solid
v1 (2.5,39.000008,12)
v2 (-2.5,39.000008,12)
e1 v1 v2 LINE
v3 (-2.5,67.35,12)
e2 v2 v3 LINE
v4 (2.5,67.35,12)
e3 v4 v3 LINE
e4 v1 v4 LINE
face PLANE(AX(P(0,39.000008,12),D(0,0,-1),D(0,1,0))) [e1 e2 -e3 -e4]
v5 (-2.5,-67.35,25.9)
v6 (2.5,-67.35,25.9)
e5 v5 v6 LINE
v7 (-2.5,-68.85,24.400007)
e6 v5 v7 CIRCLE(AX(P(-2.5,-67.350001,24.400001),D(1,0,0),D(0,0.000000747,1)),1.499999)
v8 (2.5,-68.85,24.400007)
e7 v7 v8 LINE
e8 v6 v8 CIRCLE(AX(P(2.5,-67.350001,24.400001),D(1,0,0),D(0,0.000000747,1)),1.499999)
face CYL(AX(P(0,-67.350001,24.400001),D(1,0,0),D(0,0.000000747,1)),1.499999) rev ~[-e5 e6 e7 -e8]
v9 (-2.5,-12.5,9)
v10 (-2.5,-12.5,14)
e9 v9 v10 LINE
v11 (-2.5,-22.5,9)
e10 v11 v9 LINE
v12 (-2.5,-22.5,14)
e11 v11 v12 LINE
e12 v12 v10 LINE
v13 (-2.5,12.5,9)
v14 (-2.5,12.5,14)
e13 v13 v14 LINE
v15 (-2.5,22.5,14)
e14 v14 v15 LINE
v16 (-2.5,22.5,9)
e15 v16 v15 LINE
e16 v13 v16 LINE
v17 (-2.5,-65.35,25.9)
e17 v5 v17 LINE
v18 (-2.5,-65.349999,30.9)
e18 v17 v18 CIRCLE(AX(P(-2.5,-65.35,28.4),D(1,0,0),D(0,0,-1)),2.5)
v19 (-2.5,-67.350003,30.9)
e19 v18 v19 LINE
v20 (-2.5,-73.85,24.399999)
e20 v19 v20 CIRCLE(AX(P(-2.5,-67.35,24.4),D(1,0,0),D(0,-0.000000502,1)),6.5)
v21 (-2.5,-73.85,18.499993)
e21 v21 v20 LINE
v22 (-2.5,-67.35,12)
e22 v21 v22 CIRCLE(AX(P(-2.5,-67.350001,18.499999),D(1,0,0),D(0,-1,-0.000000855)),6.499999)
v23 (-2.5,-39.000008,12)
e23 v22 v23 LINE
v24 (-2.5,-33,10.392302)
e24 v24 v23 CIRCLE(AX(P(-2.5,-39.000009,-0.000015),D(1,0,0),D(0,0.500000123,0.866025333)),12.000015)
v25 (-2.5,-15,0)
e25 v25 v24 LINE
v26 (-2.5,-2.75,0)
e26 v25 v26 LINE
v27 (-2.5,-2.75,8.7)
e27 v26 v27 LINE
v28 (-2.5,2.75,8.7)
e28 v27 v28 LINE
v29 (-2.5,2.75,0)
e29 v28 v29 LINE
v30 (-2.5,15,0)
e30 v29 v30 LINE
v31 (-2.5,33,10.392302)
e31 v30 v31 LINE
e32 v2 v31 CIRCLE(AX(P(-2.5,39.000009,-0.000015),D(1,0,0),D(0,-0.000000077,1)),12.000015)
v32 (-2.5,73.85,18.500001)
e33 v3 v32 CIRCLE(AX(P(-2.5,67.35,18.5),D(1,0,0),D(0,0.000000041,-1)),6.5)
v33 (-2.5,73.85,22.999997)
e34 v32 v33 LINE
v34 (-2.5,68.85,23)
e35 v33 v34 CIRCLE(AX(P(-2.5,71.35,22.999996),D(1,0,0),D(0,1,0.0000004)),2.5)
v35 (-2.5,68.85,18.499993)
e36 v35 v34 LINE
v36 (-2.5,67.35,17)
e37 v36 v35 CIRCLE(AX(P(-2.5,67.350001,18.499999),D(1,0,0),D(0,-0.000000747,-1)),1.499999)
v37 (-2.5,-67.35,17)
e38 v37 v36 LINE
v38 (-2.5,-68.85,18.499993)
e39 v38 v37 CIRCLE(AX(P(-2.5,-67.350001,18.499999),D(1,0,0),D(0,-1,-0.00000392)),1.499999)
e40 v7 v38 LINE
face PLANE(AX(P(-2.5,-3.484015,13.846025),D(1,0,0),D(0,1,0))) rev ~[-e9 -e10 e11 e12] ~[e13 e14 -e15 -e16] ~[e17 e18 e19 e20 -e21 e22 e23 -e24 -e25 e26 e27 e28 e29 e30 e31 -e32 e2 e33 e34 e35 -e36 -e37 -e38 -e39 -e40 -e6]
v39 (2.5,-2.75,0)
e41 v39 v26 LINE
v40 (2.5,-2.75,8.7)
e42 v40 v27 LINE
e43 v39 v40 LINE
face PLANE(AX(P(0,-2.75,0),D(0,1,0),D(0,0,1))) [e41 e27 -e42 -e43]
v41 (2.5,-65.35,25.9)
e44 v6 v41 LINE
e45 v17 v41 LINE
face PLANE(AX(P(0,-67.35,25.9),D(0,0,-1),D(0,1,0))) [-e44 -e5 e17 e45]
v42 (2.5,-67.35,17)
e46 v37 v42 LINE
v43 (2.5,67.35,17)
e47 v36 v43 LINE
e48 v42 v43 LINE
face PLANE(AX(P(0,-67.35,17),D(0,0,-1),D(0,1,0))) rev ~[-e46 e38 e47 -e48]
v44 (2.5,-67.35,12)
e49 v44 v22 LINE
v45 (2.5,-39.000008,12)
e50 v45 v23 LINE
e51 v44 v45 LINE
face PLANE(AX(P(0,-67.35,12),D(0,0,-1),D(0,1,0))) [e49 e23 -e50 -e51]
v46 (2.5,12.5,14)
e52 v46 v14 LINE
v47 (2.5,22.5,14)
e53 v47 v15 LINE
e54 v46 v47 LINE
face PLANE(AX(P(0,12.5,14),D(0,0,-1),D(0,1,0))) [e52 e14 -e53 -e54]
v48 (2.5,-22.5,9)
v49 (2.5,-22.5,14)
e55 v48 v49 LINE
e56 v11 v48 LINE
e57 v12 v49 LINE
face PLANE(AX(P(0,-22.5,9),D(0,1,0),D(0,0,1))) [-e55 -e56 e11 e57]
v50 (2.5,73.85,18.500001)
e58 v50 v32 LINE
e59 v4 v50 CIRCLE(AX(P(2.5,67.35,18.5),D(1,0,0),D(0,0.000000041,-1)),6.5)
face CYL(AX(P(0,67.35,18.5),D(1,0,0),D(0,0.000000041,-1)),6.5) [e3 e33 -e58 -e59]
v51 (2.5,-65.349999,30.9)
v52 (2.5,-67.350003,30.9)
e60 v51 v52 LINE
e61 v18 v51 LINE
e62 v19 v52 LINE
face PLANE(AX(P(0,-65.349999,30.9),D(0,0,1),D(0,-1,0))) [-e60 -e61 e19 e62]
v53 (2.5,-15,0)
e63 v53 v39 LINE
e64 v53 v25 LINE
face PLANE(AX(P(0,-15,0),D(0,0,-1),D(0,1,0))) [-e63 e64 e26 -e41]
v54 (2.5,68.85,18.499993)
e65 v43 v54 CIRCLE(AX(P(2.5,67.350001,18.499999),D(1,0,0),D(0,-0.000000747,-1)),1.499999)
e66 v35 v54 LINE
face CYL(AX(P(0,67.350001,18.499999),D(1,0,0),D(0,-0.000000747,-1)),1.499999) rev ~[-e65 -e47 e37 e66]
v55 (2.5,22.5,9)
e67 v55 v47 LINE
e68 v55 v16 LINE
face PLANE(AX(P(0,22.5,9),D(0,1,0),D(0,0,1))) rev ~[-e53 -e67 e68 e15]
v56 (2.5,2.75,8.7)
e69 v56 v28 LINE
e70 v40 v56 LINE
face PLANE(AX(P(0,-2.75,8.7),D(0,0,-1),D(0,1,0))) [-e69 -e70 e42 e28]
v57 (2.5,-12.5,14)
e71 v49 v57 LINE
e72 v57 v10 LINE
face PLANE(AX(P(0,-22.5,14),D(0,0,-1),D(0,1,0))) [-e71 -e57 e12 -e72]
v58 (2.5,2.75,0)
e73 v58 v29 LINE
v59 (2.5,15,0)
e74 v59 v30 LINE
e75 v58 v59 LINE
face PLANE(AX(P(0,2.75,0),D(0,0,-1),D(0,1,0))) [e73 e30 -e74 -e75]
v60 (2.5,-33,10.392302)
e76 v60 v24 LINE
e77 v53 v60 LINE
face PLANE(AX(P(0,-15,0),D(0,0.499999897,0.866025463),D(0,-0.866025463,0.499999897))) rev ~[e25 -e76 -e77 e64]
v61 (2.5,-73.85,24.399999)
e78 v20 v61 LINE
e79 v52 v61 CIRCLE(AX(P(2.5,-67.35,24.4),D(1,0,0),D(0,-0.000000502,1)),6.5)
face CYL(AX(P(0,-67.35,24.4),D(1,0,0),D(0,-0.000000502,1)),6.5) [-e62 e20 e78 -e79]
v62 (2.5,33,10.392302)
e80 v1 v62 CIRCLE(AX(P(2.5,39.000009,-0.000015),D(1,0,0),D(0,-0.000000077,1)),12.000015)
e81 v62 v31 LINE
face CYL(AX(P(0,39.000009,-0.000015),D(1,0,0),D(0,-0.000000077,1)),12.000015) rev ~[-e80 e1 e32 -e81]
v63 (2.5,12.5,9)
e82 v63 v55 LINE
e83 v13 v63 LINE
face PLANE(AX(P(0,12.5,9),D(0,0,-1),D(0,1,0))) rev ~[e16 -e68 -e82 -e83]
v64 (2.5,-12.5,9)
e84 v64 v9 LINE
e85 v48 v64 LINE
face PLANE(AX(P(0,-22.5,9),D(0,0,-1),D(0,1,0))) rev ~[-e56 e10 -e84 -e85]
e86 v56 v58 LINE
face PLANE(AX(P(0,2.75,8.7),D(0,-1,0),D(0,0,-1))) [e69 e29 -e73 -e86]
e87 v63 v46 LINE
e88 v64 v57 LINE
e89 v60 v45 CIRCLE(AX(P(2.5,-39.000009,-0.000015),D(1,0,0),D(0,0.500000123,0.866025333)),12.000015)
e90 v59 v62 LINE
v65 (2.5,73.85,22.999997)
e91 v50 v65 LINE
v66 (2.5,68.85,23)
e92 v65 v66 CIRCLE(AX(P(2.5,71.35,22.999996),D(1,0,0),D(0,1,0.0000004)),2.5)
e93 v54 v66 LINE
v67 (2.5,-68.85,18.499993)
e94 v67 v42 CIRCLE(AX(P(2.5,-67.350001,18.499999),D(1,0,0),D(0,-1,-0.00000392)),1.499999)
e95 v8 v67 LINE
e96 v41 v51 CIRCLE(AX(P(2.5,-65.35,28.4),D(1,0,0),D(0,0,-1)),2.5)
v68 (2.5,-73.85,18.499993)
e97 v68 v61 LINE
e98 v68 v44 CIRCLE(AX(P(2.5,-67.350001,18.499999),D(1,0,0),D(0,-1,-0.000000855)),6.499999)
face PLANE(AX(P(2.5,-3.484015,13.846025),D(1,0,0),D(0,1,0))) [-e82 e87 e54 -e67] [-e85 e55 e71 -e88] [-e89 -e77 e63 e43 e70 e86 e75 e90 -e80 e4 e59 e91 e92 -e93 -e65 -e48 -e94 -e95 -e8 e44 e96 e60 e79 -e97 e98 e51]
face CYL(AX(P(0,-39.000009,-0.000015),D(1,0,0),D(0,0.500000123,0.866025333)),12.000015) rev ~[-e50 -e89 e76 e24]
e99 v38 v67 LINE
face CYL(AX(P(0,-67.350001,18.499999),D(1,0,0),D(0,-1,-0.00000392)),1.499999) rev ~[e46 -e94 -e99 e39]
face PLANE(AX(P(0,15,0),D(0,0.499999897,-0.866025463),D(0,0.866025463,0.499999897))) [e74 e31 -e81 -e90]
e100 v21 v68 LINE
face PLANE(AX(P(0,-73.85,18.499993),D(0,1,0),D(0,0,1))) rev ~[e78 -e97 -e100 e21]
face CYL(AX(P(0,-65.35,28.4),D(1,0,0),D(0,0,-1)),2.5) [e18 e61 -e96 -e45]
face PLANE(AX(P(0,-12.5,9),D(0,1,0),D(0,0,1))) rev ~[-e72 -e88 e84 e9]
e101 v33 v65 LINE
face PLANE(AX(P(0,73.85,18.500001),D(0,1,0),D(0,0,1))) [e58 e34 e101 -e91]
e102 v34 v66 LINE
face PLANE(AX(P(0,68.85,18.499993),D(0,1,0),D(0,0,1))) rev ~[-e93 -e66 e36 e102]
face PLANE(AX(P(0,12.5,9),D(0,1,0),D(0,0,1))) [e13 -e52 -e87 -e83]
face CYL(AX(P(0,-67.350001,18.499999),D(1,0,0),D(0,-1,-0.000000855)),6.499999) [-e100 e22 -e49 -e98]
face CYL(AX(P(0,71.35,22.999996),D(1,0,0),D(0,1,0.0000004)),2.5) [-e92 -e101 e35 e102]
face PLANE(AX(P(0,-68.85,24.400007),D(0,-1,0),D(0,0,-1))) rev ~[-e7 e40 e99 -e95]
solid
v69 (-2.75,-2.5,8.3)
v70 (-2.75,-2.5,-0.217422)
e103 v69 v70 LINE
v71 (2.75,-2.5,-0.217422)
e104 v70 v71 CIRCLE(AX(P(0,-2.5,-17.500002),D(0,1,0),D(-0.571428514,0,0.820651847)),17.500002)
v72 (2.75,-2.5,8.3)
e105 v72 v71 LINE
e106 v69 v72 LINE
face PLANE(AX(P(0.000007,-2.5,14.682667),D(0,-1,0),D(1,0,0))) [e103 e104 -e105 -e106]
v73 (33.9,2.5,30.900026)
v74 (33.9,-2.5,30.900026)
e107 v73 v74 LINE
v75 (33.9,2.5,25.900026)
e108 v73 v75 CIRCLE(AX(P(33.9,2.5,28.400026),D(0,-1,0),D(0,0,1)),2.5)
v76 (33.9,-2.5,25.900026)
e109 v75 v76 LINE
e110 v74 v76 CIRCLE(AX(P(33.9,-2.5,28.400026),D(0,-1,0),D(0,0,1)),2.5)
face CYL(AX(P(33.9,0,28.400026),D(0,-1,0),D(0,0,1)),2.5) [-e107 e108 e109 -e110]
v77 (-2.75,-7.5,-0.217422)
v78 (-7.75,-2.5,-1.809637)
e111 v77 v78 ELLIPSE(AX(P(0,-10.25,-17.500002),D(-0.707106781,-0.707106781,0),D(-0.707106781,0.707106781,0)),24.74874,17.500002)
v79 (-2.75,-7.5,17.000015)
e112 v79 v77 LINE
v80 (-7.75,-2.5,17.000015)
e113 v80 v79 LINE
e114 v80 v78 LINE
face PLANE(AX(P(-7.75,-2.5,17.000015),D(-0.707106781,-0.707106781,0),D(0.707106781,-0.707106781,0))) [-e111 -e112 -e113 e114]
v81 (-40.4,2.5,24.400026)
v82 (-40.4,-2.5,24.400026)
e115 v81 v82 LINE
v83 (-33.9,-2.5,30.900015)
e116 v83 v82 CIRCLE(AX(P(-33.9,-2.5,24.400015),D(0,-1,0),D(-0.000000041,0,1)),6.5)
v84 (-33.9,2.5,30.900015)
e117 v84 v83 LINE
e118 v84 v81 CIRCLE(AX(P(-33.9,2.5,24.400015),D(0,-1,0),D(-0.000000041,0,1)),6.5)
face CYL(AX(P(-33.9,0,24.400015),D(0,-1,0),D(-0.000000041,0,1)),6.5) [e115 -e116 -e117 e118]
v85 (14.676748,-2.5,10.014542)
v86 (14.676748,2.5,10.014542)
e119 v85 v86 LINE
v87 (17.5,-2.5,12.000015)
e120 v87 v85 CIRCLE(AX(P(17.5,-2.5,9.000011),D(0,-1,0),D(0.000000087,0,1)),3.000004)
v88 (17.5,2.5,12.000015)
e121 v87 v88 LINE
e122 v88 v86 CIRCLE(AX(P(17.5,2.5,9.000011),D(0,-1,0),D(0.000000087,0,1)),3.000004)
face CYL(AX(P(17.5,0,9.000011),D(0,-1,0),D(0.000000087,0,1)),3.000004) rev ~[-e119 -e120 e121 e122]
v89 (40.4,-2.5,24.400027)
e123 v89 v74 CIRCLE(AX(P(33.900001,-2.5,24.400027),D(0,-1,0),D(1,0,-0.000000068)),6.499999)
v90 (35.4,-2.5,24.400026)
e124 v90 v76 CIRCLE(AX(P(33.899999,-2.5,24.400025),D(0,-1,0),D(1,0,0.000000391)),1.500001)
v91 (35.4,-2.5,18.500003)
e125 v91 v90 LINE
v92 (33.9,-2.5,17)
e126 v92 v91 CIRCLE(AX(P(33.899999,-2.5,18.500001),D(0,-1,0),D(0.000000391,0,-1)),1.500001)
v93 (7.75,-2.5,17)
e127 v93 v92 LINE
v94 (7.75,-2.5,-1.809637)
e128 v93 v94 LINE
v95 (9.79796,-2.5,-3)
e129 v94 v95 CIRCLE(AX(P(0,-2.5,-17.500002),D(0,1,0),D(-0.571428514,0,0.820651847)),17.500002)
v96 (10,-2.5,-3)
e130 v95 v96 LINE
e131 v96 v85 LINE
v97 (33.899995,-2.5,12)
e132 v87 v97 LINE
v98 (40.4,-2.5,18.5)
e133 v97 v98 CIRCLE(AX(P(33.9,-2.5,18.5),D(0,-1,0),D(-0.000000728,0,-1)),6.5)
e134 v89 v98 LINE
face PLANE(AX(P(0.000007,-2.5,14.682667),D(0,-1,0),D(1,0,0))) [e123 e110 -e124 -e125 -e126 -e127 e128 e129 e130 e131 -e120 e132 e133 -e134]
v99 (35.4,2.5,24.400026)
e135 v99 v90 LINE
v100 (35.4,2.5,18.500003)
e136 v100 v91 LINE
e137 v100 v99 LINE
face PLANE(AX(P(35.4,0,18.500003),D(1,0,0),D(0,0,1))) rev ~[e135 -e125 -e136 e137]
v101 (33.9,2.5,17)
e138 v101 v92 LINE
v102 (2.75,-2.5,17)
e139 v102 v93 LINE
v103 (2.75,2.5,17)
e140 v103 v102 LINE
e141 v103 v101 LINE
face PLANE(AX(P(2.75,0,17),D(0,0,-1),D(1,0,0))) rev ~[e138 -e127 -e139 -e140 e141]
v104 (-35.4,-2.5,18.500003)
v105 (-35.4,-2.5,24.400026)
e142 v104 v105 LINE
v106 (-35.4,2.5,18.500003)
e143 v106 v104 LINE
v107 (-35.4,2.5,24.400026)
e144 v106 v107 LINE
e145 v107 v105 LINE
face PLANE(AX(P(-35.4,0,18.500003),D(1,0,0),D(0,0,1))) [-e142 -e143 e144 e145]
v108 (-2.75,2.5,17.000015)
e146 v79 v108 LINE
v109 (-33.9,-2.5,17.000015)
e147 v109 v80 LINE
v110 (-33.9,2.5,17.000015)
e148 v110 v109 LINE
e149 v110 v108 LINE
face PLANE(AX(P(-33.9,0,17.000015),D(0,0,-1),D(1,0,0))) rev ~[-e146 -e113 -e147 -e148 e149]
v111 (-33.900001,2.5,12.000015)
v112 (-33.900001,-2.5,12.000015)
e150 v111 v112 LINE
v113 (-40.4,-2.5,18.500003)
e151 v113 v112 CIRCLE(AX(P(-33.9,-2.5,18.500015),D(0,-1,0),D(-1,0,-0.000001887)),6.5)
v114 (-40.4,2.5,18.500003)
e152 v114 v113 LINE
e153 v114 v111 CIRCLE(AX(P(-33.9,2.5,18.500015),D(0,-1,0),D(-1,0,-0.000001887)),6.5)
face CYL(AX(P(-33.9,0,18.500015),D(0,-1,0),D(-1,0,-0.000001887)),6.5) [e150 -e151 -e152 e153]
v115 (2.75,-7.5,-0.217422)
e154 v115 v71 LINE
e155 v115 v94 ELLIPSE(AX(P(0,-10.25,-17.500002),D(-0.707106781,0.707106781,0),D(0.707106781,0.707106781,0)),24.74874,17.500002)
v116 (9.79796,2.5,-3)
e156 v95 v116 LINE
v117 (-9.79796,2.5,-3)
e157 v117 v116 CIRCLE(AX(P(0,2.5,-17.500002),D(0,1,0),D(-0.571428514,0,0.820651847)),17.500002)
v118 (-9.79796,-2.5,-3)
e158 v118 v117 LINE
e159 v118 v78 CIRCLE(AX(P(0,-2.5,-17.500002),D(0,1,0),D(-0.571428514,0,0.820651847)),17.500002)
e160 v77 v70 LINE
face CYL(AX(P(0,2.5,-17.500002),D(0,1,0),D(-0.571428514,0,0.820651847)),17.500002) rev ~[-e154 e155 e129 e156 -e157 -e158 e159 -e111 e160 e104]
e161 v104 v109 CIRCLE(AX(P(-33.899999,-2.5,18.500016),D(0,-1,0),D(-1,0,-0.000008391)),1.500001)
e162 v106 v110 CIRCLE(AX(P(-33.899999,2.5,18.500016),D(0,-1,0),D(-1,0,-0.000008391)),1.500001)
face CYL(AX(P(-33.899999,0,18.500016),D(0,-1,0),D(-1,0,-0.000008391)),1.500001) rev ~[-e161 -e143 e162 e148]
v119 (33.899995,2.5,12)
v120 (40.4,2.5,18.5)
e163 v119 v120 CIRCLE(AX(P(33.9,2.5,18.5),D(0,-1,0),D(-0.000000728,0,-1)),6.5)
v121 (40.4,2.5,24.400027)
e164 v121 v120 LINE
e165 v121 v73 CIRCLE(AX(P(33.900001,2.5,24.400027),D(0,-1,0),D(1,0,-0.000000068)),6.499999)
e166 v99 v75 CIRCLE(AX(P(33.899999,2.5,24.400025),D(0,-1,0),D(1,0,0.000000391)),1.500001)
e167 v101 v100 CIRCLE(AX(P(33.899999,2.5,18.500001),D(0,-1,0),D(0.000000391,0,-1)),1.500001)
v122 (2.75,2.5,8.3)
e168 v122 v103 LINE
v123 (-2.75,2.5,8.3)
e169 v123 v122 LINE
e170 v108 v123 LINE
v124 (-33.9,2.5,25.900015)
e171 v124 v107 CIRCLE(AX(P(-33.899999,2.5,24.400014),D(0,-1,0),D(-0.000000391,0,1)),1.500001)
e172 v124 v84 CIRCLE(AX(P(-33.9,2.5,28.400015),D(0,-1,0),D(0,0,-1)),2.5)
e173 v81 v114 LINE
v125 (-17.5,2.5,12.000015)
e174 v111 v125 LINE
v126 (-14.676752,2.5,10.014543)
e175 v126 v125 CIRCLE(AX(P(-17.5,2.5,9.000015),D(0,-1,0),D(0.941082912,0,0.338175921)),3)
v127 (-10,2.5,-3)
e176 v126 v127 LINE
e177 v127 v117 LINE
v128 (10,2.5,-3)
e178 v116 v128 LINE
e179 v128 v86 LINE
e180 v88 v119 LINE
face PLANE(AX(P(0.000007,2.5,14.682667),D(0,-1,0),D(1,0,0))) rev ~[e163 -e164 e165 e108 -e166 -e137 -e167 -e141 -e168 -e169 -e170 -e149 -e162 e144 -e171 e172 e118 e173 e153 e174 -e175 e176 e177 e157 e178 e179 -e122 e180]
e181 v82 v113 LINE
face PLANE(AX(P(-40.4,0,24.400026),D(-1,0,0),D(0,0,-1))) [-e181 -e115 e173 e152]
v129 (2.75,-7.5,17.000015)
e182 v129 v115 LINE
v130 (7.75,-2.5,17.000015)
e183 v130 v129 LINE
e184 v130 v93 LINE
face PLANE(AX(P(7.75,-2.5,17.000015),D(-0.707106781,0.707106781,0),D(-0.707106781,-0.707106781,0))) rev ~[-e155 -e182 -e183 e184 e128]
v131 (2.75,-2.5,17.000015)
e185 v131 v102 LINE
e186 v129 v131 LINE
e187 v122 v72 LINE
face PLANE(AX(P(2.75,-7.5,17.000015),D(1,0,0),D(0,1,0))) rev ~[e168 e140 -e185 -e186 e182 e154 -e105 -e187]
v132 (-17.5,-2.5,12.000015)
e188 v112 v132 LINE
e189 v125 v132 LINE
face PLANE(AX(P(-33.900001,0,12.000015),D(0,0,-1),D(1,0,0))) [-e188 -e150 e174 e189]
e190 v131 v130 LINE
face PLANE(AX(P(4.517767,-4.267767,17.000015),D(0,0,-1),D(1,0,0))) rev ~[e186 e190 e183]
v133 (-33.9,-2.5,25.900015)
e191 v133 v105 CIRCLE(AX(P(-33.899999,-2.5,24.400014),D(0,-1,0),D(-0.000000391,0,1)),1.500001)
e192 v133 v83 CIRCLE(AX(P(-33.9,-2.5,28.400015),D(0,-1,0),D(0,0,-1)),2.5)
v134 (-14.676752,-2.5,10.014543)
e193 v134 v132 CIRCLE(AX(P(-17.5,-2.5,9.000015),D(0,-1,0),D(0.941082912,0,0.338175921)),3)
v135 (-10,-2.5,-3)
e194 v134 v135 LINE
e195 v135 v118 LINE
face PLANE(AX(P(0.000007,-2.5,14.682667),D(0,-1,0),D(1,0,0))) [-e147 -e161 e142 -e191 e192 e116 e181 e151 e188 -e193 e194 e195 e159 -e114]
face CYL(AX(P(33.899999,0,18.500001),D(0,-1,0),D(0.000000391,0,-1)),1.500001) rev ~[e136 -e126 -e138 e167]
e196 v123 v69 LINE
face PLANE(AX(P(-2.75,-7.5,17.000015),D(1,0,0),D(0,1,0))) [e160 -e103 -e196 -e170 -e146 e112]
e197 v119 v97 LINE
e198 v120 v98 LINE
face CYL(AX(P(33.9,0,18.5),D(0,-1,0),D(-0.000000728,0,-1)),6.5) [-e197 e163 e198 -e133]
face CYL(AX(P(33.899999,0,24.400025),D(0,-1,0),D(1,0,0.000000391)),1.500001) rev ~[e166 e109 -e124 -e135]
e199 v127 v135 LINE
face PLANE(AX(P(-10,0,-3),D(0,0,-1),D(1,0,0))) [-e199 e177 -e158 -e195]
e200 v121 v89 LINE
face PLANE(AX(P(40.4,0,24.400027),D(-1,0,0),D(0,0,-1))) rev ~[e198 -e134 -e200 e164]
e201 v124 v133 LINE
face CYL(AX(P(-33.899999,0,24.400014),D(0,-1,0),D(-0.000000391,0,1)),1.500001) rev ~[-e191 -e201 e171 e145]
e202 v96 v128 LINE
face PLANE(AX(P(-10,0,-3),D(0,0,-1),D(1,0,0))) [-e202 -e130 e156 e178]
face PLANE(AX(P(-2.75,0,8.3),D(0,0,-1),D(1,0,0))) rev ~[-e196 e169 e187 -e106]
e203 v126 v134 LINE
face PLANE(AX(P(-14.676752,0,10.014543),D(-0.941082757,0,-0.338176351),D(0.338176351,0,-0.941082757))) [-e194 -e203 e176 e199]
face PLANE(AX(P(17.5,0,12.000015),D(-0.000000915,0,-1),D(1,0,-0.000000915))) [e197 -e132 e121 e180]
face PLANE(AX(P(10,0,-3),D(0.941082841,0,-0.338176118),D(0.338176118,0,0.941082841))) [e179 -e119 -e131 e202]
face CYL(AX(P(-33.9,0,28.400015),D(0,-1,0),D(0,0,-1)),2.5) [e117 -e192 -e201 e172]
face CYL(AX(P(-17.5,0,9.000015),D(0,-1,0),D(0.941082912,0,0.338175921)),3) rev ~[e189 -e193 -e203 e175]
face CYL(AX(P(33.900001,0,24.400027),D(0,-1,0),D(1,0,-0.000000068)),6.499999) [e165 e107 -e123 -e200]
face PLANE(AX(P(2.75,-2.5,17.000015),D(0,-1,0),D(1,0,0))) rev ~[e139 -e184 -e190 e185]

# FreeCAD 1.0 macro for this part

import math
import FreeCAD as App
import Part
import Sketcher
from FreeCAD import Vector
Q = App.Units.Quantity

doc = App.newDocument("Part")
body = doc.addObject("PartDesign::Body", "Body")

# Sketch on YZ plane
sketch1 = body.newObject("Sketcher::SketchObject", "Sketch")
sketch1.AttachmentSupport = (doc.getObject("YZ_Plane"), [""])
sketch1.MapMode = "FlatFace"
sketch1.addGeometry(Part.LineSegment(Vector(73.8, 18.5, 0), Vector(73.8, 23, 0)), False)
sketch1.addGeometry(Part.ArcOfCircle(Part.Circle(Vector(71.3, 23, 0), Vector(0, 0, 1), 2.5), math.radians(0), math.radians(180)), False)
sketch1.addGeometry(Part.LineSegment(Vector(68.8, 23, 0), Vector(68.8, 18.5, 0)), False)
sketch1.addGeometry(Part.ArcOfCircle(Part.Circle(Vector(67.4, 18.5, 0), Vector(0, 0, 1), 1.5), math.radians(-90), math.radians(0)), False)
sketch1.addGeometry(Part.LineSegment(Vector(67.3, 17, 0), Vector(-67.3, 17, 0)), False)
sketch1.addGeometry(Part.ArcOfCircle(Part.Circle(Vector(-67.4, 18.5, 0), Vector(0, 0, 1), 1.5), math.radians(-180), math.radians(-90)), False)
sketch1.addGeometry(Part.LineSegment(Vector(-68.8, 18.5, 0), Vector(-68.8, 24.4, 0)), False)
sketch1.addGeometry(Part.ArcOfCircle(Part.Circle(Vector(-67.4, 24.4, 0), Vector(0, 0, 1), 1.5), math.radians(90), math.radians(180)), False)
sketch1.addGeometry(Part.LineSegment(Vector(-67.3, 25.9, 0), Vector(-65.3, 25.9, 0)), False)
sketch1.addGeometry(Part.ArcOfCircle(Part.Circle(Vector(-65.3, 28.4, 0), Vector(0, 0, 1), 2.5), math.radians(-90), math.radians(90)), False)
sketch1.addGeometry(Part.LineSegment(Vector(-65.3, 30.9, 0), Vector(-67.4, 30.9, 0)), False)
sketch1.addGeometry(Part.ArcOfCircle(Part.Circle(Vector(-67.3, 24.4, 0), Vector(0, 0, 1), 6.5), math.radians(90), math.radians(180)), False)
sketch1.addGeometry(Part.LineSegment(Vector(-73.8, 24.4, 0), Vector(-73.8, 18.5, 0)), False)
sketch1.addGeometry(Part.ArcOfCircle(Part.Circle(Vector(-67.4, 18.5, 0), Vector(0, 0, 1), 6.5), math.radians(-180), math.radians(-90)), False)
sketch1.addGeometry(Part.LineSegment(Vector(-67.3, 12, 0), Vector(-39, 12, 0)), False)
sketch1.addGeometry(Part.ArcOfCircle(Part.Circle(Vector(-39, 0, 0), Vector(0, 0, 1), 12), math.radians(60), math.radians(90)), False)
sketch1.addGeometry(Part.LineSegment(Vector(-33, 10.4, 0), Vector(-15, 0, 0)), False)
sketch1.addGeometry(Part.LineSegment(Vector(-15, 0, 0), Vector(-2.8, 0, 0)), False)
sketch1.addGeometry(Part.LineSegment(Vector(-2.8, 0, 0), Vector(-2.8, 8.7, 0)), False)
sketch1.addGeometry(Part.LineSegment(Vector(-2.8, 8.7, 0), Vector(2.8, 8.7, 0)), False)
sketch1.addGeometry(Part.LineSegment(Vector(2.8, 8.7, 0), Vector(2.8, 0, 0)), False)
sketch1.addGeometry(Part.LineSegment(Vector(2.8, 0, 0), Vector(15, 0, 0)), False)
sketch1.addGeometry(Part.LineSegment(Vector(15, 0, 0), Vector(33, 10.4, 0)), False)
sketch1.addGeometry(Part.ArcOfCircle(Part.Circle(Vector(39, 0, 0), Vector(0, 0, 1), 12), math.radians(90), math.radians(120)), False)
sketch1.addGeometry(Part.LineSegment(Vector(39, 12, 0), Vector(67.3, 12, 0)), False)
sketch1.addGeometry(Part.ArcOfCircle(Part.Circle(Vector(67.3, 18.5, 0), Vector(0, 0, 1), 6.5), math.radians(-90), math.radians(0)), False)
sketch1.addGeometry(Part.LineSegment(Vector(-12.5, 9, 0), Vector(-22.5, 9, 0)), False)
sketch1.addGeometry(Part.LineSegment(Vector(-22.5, 9, 0), Vector(-22.5, 14, 0)), False)
sketch1.addGeometry(Part.LineSegment(Vector(-22.5, 14, 0), Vector(-12.5, 14, 0)), False)
sketch1.addGeometry(Part.LineSegment(Vector(-12.5, 14, 0), Vector(-12.5, 9, 0)), False)
sketch1.addGeometry(Part.LineSegment(Vector(22.5, 9, 0), Vector(12.5, 9, 0)), False)
sketch1.addGeometry(Part.LineSegment(Vector(12.5, 9, 0), Vector(12.5, 14, 0)), False)
sketch1.addGeometry(Part.LineSegment(Vector(12.5, 14, 0), Vector(22.5, 14, 0)), False)
sketch1.addGeometry(Part.LineSegment(Vector(22.5, 14, 0), Vector(22.5, 9, 0)), False)
sketch1.addConstraint(Sketcher.Constraint("Tangent", 0, 2, 1, 1))
sketch1.addConstraint(Sketcher.Constraint("Tangent", 1, 2, 2, 1))
sketch1.addConstraint(Sketcher.Constraint("Coincident", 2, 2, 3, 2))
sketch1.addConstraint(Sketcher.Constraint("Tangent", 3, 1, 4, 1))
sketch1.addConstraint(Sketcher.Constraint("Tangent", 4, 2, 5, 2))
sketch1.addConstraint(Sketcher.Constraint("Coincident", 5, 1, 6, 1))
sketch1.addConstraint(Sketcher.Constraint("Coincident", 6, 2, 7, 2))
sketch1.addConstraint(Sketcher.Constraint("Tangent", 7, 1, 8, 1))
sketch1.addConstraint(Sketcher.Constraint("Tangent", 8, 2, 9, 1))
sketch1.addConstraint(Sketcher.Constraint("Tangent", 9, 2, 10, 1))
sketch1.addConstraint(Sketcher.Constraint("Tangent", 10, 2, 11, 1))
sketch1.addConstraint(Sketcher.Constraint("Tangent", 11, 2, 12, 1))
sketch1.addConstraint(Sketcher.Constraint("Tangent", 12, 2, 13, 1))
sketch1.addConstraint(Sketcher.Constraint("Tangent", 13, 2, 14, 1))
sketch1.addConstraint(Sketcher.Constraint("Tangent", 14, 2, 15, 2))
sketch1.addConstraint(Sketcher.Constraint("Tangent", 15, 1, 16, 1))
sketch1.addConstraint(Sketcher.Constraint("Coincident", 16, 2, 17, 1))
sketch1.addConstraint(Sketcher.Constraint("Coincident", 17, 2, 18, 1))
sketch1.addConstraint(Sketcher.Constraint("Coincident", 18, 2, 19, 1))
sketch1.addConstraint(Sketcher.Constraint("Coincident", 19, 2, 20, 1))
sketch1.addConstraint(Sketcher.Constraint("Coincident", 20, 2, 21, 1))
sketch1.addConstraint(Sketcher.Constraint("Coincident", 21, 2, 22, 1))
sketch1.addConstraint(Sketcher.Constraint("Tangent", 22, 2, 23, 2))
sketch1.addConstraint(Sketcher.Constraint("Tangent", 23, 1, 24, 1))
sketch1.addConstraint(Sketcher.Constraint("Tangent", 24, 2, 25, 1))
sketch1.addConstraint(Sketcher.Constraint("Tangent", 25, 2, 0, 1))
sketch1.addConstraint(Sketcher.Constraint("Coincident", 26, 2, 27, 1))
sketch1.addConstraint(Sketcher.Constraint("Coincident", 27, 2, 28, 1))
sketch1.addConstraint(Sketcher.Constraint("Coincident", 28, 2, 29, 1))
sketch1.addConstraint(Sketcher.Constraint("Coincident", 29, 2, 26, 1))
sketch1.addConstraint(Sketcher.Constraint("Coincident", 30, 2, 31, 1))
sketch1.addConstraint(Sketcher.Constraint("Coincident", 31, 2, 32, 1))
sketch1.addConstraint(Sketcher.Constraint("Coincident", 32, 2, 33, 1))
sketch1.addConstraint(Sketcher.Constraint("Coincident", 33, 2, 30, 1))
sketch1.addConstraint(Sketcher.Constraint("Vertical", 0))
sketch1.addConstraint(Sketcher.Constraint("Vertical", 2))
sketch1.addConstraint(Sketcher.Constraint("Horizontal", 4))
sketch1.addConstraint(Sketcher.Constraint("Vertical", 6))
sketch1.addConstraint(Sketcher.Constraint("Horizontal", 8))
sketch1.addConstraint(Sketcher.Constraint("Horizontal", 10))
sketch1.addConstraint(Sketcher.Constraint("Vertical", 12))
sketch1.addConstraint(Sketcher.Constraint("Horizontal", 14))
sketch1.addConstraint(Sketcher.Constraint("Horizontal", 17))
sketch1.addConstraint(Sketcher.Constraint("Vertical", 18))
sketch1.addConstraint(Sketcher.Constraint("Horizontal", 19))
sketch1.addConstraint(Sketcher.Constraint("Vertical", 20))
sketch1.addConstraint(Sketcher.Constraint("Horizontal", 21))
sketch1.addConstraint(Sketcher.Constraint("Horizontal", 24))
sketch1.addConstraint(Sketcher.Constraint("Horizontal", 26))
sketch1.addConstraint(Sketcher.Constraint("Vertical", 27))
sketch1.addConstraint(Sketcher.Constraint("Horizontal", 28))
sketch1.addConstraint(Sketcher.Constraint("Vertical", 29))
sketch1.addConstraint(Sketcher.Constraint("Horizontal", 30))
sketch1.addConstraint(Sketcher.Constraint("Vertical", 31))
sketch1.addConstraint(Sketcher.Constraint("Horizontal", 32))
sketch1.addConstraint(Sketcher.Constraint("Vertical", 33))
sketch1.addConstraint(Sketcher.Constraint("Coincident", 11, 3, 7, 3))
sketch1.addConstraint(Sketcher.Constraint("Coincident", 13, 3, 5, 3))
sketch1.addConstraint(Sketcher.Constraint("Coincident", 25, 3, 3, 3))
sketch1.addConstraint(Sketcher.Constraint("Equal", 3, 5))
sketch1.addConstraint(Sketcher.Constraint("Equal", 5, 7))
sketch1.addConstraint(Sketcher.Constraint("Equal", 1, 9))
sketch1.addConstraint(Sketcher.Constraint("Equal", 15, 23))
sketch1.addConstraint(Sketcher.Constraint("Symmetric", 17, 2, 20, 2, -1, 1))
sketch1.addConstraint(Sketcher.Constraint("Symmetric", 2, 2, 5, 1, -2))
sketch1.addConstraint(Sketcher.Constraint("Symmetric", 16, 2, 21, 2, -2))
sketch1.addConstraint(Sketcher.Constraint("Symmetric", 29, 2, 30, 2, -2))
sketch1.addConstraint(Sketcher.Constraint("Symmetric", 27, 2, 32, 2, -2))
sketch1.addConstraint(Sketcher.Constraint("Horizontal", 5, 1, 12, 2))
sketch1.addConstraint(Sketcher.Constraint("Horizontal", 15, 1, 22, 2))
sketch1.addConstraint(Sketcher.Constraint("Radius", 1, Q("2.5 mm")))
sketch1.addConstraint(Sketcher.Constraint("Radius", 3, Q("1.499999 mm")))
sketch1.addConstraint(Sketcher.Constraint("DistanceX", 8, 1, 8, 2, Q("2 mm")))
sketch1.addConstraint(Sketcher.Constraint("DistanceX", 26, 2, 26, 1, Q("10 mm")))
sketch1.addConstraint(Sketcher.Constraint("DistanceY", 27, 1, 27, 2, Q("5 mm")))
sketch1.addConstraint(Sketcher.Constraint("Angle", 16, Q("-29.999993 deg")))
sketch1.addConstraint(Sketcher.Constraint("DistanceX", 4, 2, 4, 1, Q("134.7 mm")))
sketch1.addConstraint(Sketcher.Constraint("DistanceX", 19, 1, 19, 2, Q("5.5 mm")))
sketch1.addConstraint(Sketcher.Constraint("DistanceY", 18, 1, 18, 2, Q("8.7 mm")))
sketch1.addConstraint(Sketcher.Constraint("DistanceY", -1, 1, 1, 2, Q("23 mm")))
sketch1.addConstraint(Sketcher.Constraint("DistanceY", -1, 1, 3, 1, Q("17 mm")))
sketch1.addConstraint(Sketcher.Constraint("DistanceX", 15, 1, -1, 1, Q("33 mm")))
sketch1.addConstraint(Sketcher.Constraint("DistanceX", 16, 2, -1, 1, Q("15 mm")))
sketch1.addConstraint(Sketcher.Constraint("DistanceY", -1, 1, 26, 2, Q("9 mm")))
sketch1.addConstraint(Sketcher.Constraint("DistanceY", -1, 1, 7, 3, Q("24.400001 mm")))
sketch1.addConstraint(Sketcher.Constraint("DistanceX", 26, 2, -1, 1, Q("22.5 mm")))
sketch1.addConstraint(Sketcher.Constraint("DistanceY", 6, 1, 6, 2, Q("5.900014 mm")))
pad1 = body.newObject("PartDesign::Pad", "Pad")
pad1.Profile = sketch1
pad1.Length = 5
pad1.Midplane = True
body2 = doc.addObject("PartDesign::Body", "Body001")
body2.AllowCompound = True

# Sketch on XZ plane
sketch2 = body2.newObject("Sketcher::SketchObject", "Sketch001")
sketch2.AttachmentSupport = (doc.getObject("XZ_Plane001"), [""])
sketch2.MapMode = "FlatFace"
sketch2.addGeometry(Part.LineSegment(Vector(17.5, 12.000015, 0), Vector(33.899995, 12, 0)), False)
sketch2.addGeometry(Part.ArcOfCircle(Part.Circle(Vector(33.9, 18.5, 0), Vector(0, 0, 1), 6.5), math.radians(-90.000042), math.radians(-0.000002)), False)
sketch2.addGeometry(Part.LineSegment(Vector(40.4, 18.5, 0), Vector(40.4, 24.400027, 0)), False)
sketch2.addGeometry(Part.ArcOfCircle(Part.Circle(Vector(33.900001, 24.400027, 0), Vector(0, 0, 1), 6.499999), math.radians(-0.000004), math.radians(90.000013)), False)
sketch2.addGeometry(Part.ArcOfCircle(Part.Circle(Vector(33.9, 28.400026, 0), Vector(0, 0, 1), 2.5), math.radians(90), math.radians(270)), False)
sketch2.addGeometry(Part.ArcOfCircle(Part.Circle(Vector(33.899999, 24.400025, 0), Vector(0, 0, 1), 1.500001), math.radians(0.000022), math.radians(89.999978)), False)
sketch2.addGeometry(Part.LineSegment(Vector(35.4, 24.400026, 0), Vector(35.4, 18.500003, 0)), False)
sketch2.addGeometry(Part.ArcOfCircle(Part.Circle(Vector(33.899999, 18.500001, 0), Vector(0, 0, 1), 1.500001), math.radians(-89.999978), math.radians(0.000092)), False)
sketch2.addGeometry(Part.LineSegment(Vector(33.9, 17, 0), Vector(2.75, 17, 0)), False)
sketch2.addGeometry(Part.LineSegment(Vector(2.75, 17, 0), Vector(2.75, 8.3, 0)), False)
sketch2.addGeometry(Part.LineSegment(Vector(2.75, 8.3, 0), Vector(-2.75, 8.3, 0)), False)
sketch2.addGeometry(Part.LineSegment(Vector(-2.75, 8.3, 0), Vector(-2.75, 17.000015, 0)), False)
sketch2.addGeometry(Part.LineSegment(Vector(-2.75, 17.000015, 0), Vector(-33.9, 17.000015, 0)), False)
sketch2.addGeometry(Part.ArcOfCircle(Part.Circle(Vector(-33.899999, 18.500016, 0), Vector(0, 0, 1), 1.500001), math.radians(-179.999519), math.radians(-90.000022)), False)
sketch2.addGeometry(Part.LineSegment(Vector(-35.4, 18.500003, 0), Vector(-35.4, 24.400026, 0)), False)
sketch2.addGeometry(Part.ArcOfCircle(Part.Circle(Vector(-33.899999, 24.400014, 0), Vector(0, 0, 1), 1.500001), math.radians(90.000022), math.radians(179.999557)), False)
sketch2.addGeometry(Part.ArcOfCircle(Part.Circle(Vector(-33.9, 28.400015, 0), Vector(0, 0, 1), 2.5), math.radians(-90), math.radians(90)), False)
sketch2.addGeometry(Part.ArcOfCircle(Part.Circle(Vector(-33.9, 24.400015, 0), Vector(0, 0, 1), 6.5), math.radians(90.000002), math.radians(179.999901)), False)
sketch2.addGeometry(Part.LineSegment(Vector(-40.4, 24.400026, 0), Vector(-40.4, 18.500003, 0)), False)
sketch2.addGeometry(Part.ArcOfCircle(Part.Circle(Vector(-33.9, 18.500015, 0), Vector(0, 0, 1), 6.5), math.radians(-179.999892), math.radians(-90.000011)), False)
sketch2.addGeometry(Part.LineSegment(Vector(-33.900001, 12.000015, 0), Vector(-17.5, 12.000015, 0)), False)
sketch2.addGeometry(Part.ArcOfCircle(Part.Circle(Vector(-17.5, 9.000015, 0), Vector(0, 0, 1), 3), math.radians(19.76578), math.radians(89.999992)), False)
sketch2.addGeometry(Part.LineSegment(Vector(-14.676752, 10.014543, 0), Vector(-10, -3, 0)), False)
sketch2.addGeometry(Part.LineSegment(Vector(-10, -3, 0), Vector(10, -3, 0)), False)
sketch2.addGeometry(Part.LineSegment(Vector(10, -3, 0), Vector(14.676748, 10.014542, 0)), False)
sketch2.addGeometry(Part.ArcOfCircle(Part.Circle(Vector(17.5, 9.000011, 0), Vector(0, 0, 1), 3.000004), math.radians(89.999995), math.radians(160.234183)), False)
sketch2.addConstraint(Sketcher.Constraint("Coincident", 0, 2, 1, 1))
sketch2.addConstraint(Sketcher.Constraint("Coincident", 1, 2, 2, 1))
sketch2.addConstraint(Sketcher.Constraint("Coincident", 2, 2, 3, 1))
sketch2.addConstraint(Sketcher.Constraint("Coincident", 3, 2, 4, 1))
sketch2.addConstraint(Sketcher.Constraint("Coincident", 4, 2, 5, 2))
sketch2.addConstraint(Sketcher.Constraint("Coincident", 5, 1, 6, 1))
sketch2.addConstraint(Sketcher.Constraint("Coincident", 6, 2, 7, 2))
sketch2.addConstraint(Sketcher.Constraint("Coincident", 7, 1, 8, 1))
sketch2.addConstraint(Sketcher.Constraint("Coincident", 8, 2, 9, 1))
sketch2.addConstraint(Sketcher.Constraint("Coincident", 9, 2, 10, 1))
sketch2.addConstraint(Sketcher.Constraint("Coincident", 10, 2, 11, 1))
sketch2.addConstraint(Sketcher.Constraint("Coincident", 11, 2, 12, 1))
sketch2.addConstraint(Sketcher.Constraint("Coincident", 12, 2, 13, 2))
sketch2.addConstraint(Sketcher.Constraint("Coincident", 13, 1, 14, 1))
sketch2.addConstraint(Sketcher.Constraint("Coincident", 14, 2, 15, 2))
sketch2.addConstraint(Sketcher.Constraint("Coincident", 15, 1, 16, 1))
sketch2.addConstraint(Sketcher.Constraint("Coincident", 16, 2, 17, 1))
sketch2.addConstraint(Sketcher.Constraint("Coincident", 17, 2, 18, 1))
sketch2.addConstraint(Sketcher.Constraint("Coincident", 18, 2, 19, 1))
sketch2.addConstraint(Sketcher.Constraint("Coincident", 19, 2, 20, 1))
sketch2.addConstraint(Sketcher.Constraint("Coincident", 20, 2, 21, 2))
sketch2.addConstraint(Sketcher.Constraint("Coincident", 21, 1, 22, 1))
sketch2.addConstraint(Sketcher.Constraint("Coincident", 22, 2, 23, 1))
sketch2.addConstraint(Sketcher.Constraint("Coincident", 23, 2, 24, 1))
sketch2.addConstraint(Sketcher.Constraint("Coincident", 24, 2, 25, 2))
sketch2.addConstraint(Sketcher.Constraint("Coincident", 25, 1, 0, 1))
sketch2.addConstraint(Sketcher.Constraint("Vertical", 2))
sketch2.addConstraint(Sketcher.Constraint("Vertical", 6))
sketch2.addConstraint(Sketcher.Constraint("Horizontal", 8))
sketch2.addConstraint(Sketcher.Constraint("Vertical", 9))
sketch2.addConstraint(Sketcher.Constraint("Horizontal", 10))
sketch2.addConstraint(Sketcher.Constraint("Vertical", 11))
sketch2.addConstraint(Sketcher.Constraint("Horizontal", 12))
sketch2.addConstraint(Sketcher.Constraint("Vertical", 14))
sketch2.addConstraint(Sketcher.Constraint("Vertical", 18))
sketch2.addConstraint(Sketcher.Constraint("Horizontal", 20))
sketch2.addConstraint(Sketcher.Constraint("Horizontal", 23))
sketch2.addConstraint(Sketcher.Constraint("Coincident", 5, 3, 3, 3))
sketch2.addConstraint(Sketcher.Constraint("Coincident", 7, 3, 1, 3))
sketch2.addConstraint(Sketcher.Constraint("Coincident", 17, 3, 15, 3))
sketch2.addConstraint(Sketcher.Constraint("Coincident", 19, 3, 13, 3))
sketch2.addConstraint(Sketcher.Constraint("Radius", 21, Q("3 mm")))
sketch2.addConstraint(Sketcher.Constraint("Radius", 1, Q("6.5 mm")))
sketch2.addConstraint(Sketcher.Constraint("Radius", 3, Q("6.499999 mm")))
sketch2.addConstraint(Sketcher.Constraint("Radius", 4, Q("2.5 mm")))
sketch2.addConstraint(Sketcher.Constraint("Radius", 13, Q("1.500001 mm")))
sketch2.addConstraint(Sketcher.Constraint("Radius", 15, Q("1.500001 mm")))
sketch2.addConstraint(Sketcher.Constraint("Radius", 16, Q("2.5 mm")))
sketch2.addConstraint(Sketcher.Constraint("DistanceX", 23, 1, 23, 2, Q("20 mm")))
sketch2.addConstraint(Sketcher.Constraint("DistanceX", 10, 2, 10, 1, Q("5.5 mm")))
sketch2.addConstraint(Sketcher.Constraint("DistanceX", 20, 1, 20, 2, Q("16.400001 mm")))
sketch2.addConstraint(Sketcher.Constraint("DistanceY", 9, 2, 9, 1, Q("8.7 mm")))
sketch2.addConstraint(Sketcher.Constraint("DistanceY", -1, 1, 0, 2, Q("12 mm")))
sketch2.addConstraint(Sketcher.Constraint("DistanceX", 22, 2, -1, 1, Q("10 mm")))
sketch2.addConstraint(Sketcher.Constraint("DistanceY", 22, 2, -1, 1, Q("3 mm")))
sketch2.addConstraint(Sketcher.Constraint("DistanceY", 2, 2, 4, 3, Q("3.999999 mm")))
sketch2.addConstraint(Sketcher.Constraint("DistanceY", 5, 1, 4, 3, Q("4 mm")))
sketch2.addConstraint(Sketcher.Constraint("DistanceX", 8, 2, 8, 1, Q("31.15 mm")))
sketch2.addConstraint(Sketcher.Constraint("DistanceX", 12, 2, 12, 1, Q("31.15 mm")))
sketch2.addConstraint(Sketcher.Constraint("DistanceX", -1, 1, 1, 3, Q("33.9 mm")))
sketch2.addConstraint(Sketcher.Constraint("DistanceX", -1, 1, 4, 3, Q("33.9 mm")))
sketch2.addConstraint(Sketcher.Constraint("DistanceX", 13, 3, -1, 1, Q("33.899999 mm")))
sketch2.addConstraint(Sketcher.Constraint("DistanceX", 16, 3, -1, 1, Q("33.9 mm")))
sketch2.addConstraint(Sketcher.Constraint("DistanceX", 21, 3, -1, 1, Q("17.5 mm")))
sketch2.addConstraint(Sketcher.Constraint("DistanceX", -1, 1, 25, 3, Q("17.5 mm")))
sketch2.addConstraint(Sketcher.Constraint("DistanceY", -1, 1, 1, 2, Q("18.5 mm")))
sketch2.addConstraint(Sketcher.Constraint("DistanceX", -1, 1, 3, 2, Q("33.9 mm")))
sketch2.addConstraint(Sketcher.Constraint("DistanceX", -1, 1, 4, 2, Q("33.9 mm")))
sketch2.addConstraint(Sketcher.Constraint("DistanceX", -1, 1, 7, 1, Q("33.9 mm")))
sketch2.addConstraint(Sketcher.Constraint("DistanceX", 15, 1, -1, 1, Q("33.9 mm")))
sketch2.addConstraint(Sketcher.Constraint("DistanceX", 16, 2, -1, 1, Q("33.9 mm")))
sketch2.addConstraint(Sketcher.Constraint("DistanceX", 19, 2, -1, 1, Q("33.900001 mm")))
sketch2.addConstraint(Sketcher.Constraint("DistanceX", -1, 1, 25, 1, Q("17.5 mm")))
sketch2.addConstraint(Sketcher.Constraint("DistanceY", 13, 3, 15, 3, Q("5.899999 mm")))
sketch2.addConstraint(Sketcher.Constraint("Radius", 25, Q("3.000004 mm")))
sketch2.addConstraint(Sketcher.Constraint("Distance", 22, Q("13.829329 mm")))
sketch2.addConstraint(Sketcher.Constraint("DistanceY", 2, 1, 2, 2, Q("5.900027 mm")))
sketch2.addConstraint(Sketcher.Constraint("DistanceY", 6, 2, 6, 1, Q("5.900023 mm")))
sketch2.addConstraint(Sketcher.Constraint("DistanceY", 11, 1, 11, 2, Q("8.700015 mm")))
sketch2.addConstraint(Sketcher.Constraint("DistanceY", 14, 1, 14, 2, Q("5.900023 mm")))
sketch2.addConstraint(Sketcher.Constraint("DistanceY", 18, 2, 18, 1, Q("5.900023 mm")))
sketch2.addConstraint(Sketcher.Constraint("DistanceY", -1, 1, 25, 3, Q("9.000011 mm")))
sketch2.addConstraint(Sketcher.Constraint("DistanceY", 13, 1, 15, 3, Q("5.900011 mm")))
sketch2.addConstraint(Sketcher.Constraint("DistanceY", 17, 2, 15, 1, Q("1.499989 mm")))
sketch2.addConstraint(Sketcher.Constraint("DistanceX", 24, 2, 25, 3, Q("2.823252 mm")))
sketch2.addConstraint(Sketcher.Constraint("Distance", 0, Q("16.399995 mm")))
pad2 = body2.newObject("PartDesign::Pad", "Pad001")
pad2.Profile = sketch2
pad2.Length = 5
pad2.Midplane = True

# Sketch on XY plane
sketch3 = body2.newObject("Sketcher::SketchObject", "Sketch002")
sketch3.AttachmentSupport = (doc.getObject("XY_Plane001"), [""])
sketch3.MapMode = "FlatFace"
sketch3.AttachmentOffset = App.Placement(Vector(0, 0, 17.000015), App.Rotation())
sketch3.addGeometry(Part.LineSegment(Vector(3, -8, 0), Vector(8, -2, 0)), False)
sketch3.addGeometry(Part.LineSegment(Vector(8, -2, 0), Vector(3, -2, 0)), False)
sketch3.addGeometry(Part.LineSegment(Vector(3, -2, 0), Vector(3, -8, 0)), False)
sketch3.addGeometry(Part.LineSegment(Vector(-3, -8, 0), Vector(-3, -2, 0)), False)
sketch3.addGeometry(Part.LineSegment(Vector(-3, -2, 0), Vector(-8, -2, 0)), False)
sketch3.addGeometry(Part.LineSegment(Vector(-8, -2, 0), Vector(-3, -8, 0)), False)
sketch3.addConstraint(Sketcher.Constraint("Coincident", 0, 2, 1, 1))
sketch3.addConstraint(Sketcher.Constraint("Coincident", 1, 2, 2, 1))
sketch3.addConstraint(Sketcher.Constraint("Coincident", 2, 2, 0, 1))
sketch3.addConstraint(Sketcher.Constraint("Coincident", 3, 2, 4, 1))
sketch3.addConstraint(Sketcher.Constraint("Coincident", 4, 2, 5, 1))
sketch3.addConstraint(Sketcher.Constraint("Coincident", 5, 2, 3, 1))
sketch3.addConstraint(Sketcher.Constraint("Horizontal", 1))
sketch3.addConstraint(Sketcher.Constraint("Vertical", 2))
sketch3.addConstraint(Sketcher.Constraint("Vertical", 3))
sketch3.addConstraint(Sketcher.Constraint("Horizontal", 4))
sketch3.addConstraint(Sketcher.Constraint("Symmetric", 1, 2, 3, 2, -2))
sketch3.addConstraint(Sketcher.Constraint("Perpendicular", 0, 5))
sketch3.addConstraint(Sketcher.Constraint("Horizontal", 2, 2, 5, 2))
sketch3.addConstraint(Sketcher.Constraint("Equal", 1, 4))
sketch3.addConstraint(Sketcher.Constraint("DistanceX", 1, 2, 1, 1, Q("5 mm")))
sketch3.addConstraint(Sketcher.Constraint("DistanceY", 0, 2, -1, 1, Q("2.5 mm")))
sketch3.addConstraint(Sketcher.Constraint("DistanceX", 3, 2, 1, 2, Q("5.5 mm")))
pad3 = body2.newObject("PartDesign::Pad", "Pad002")
pad3.Profile = sketch3
pad3.Length = 20
pad3.Reversed = True

# Sketch on XZ plane
sketch4 = body2.newObject("Sketcher::SketchObject", "Sketch003")
sketch4.AttachmentSupport = (doc.getObject("XZ_Plane001"), [""])
sketch4.MapMode = "FlatFace"
sketch4.AttachmentOffset = App.Placement(Vector(0, 0, -2.5), App.Rotation())
sketch4.addGeometry(Part.ArcOfCircle(Part.Circle(Vector(0, -18, 0), Vector(0, 0, 1), 18), math.radians(55), math.radians(125)), False)
sketch4.addGeometry(Part.LineSegment(Vector(10, -3, 0), Vector(-10, -3, 0)), False)
sketch4.addConstraint(Sketcher.Constraint("Coincident", 0, 1, 1, 1))
sketch4.addConstraint(Sketcher.Constraint("Coincident", 1, 2, 0, 2))
sketch4.addConstraint(Sketcher.Constraint("Horizontal", 1))
sketch4.addConstraint(Sketcher.Constraint("PointOnObject", 0, 3, -2))
sketch4.addConstraint(Sketcher.Constraint("Radius", 0, Q("17.500002 mm")))
sketch4.addConstraint(Sketcher.Constraint("DistanceX", 1, 2, 1, 1, Q("20 mm")))
sketch4.addConstraint(Sketcher.Constraint("DistanceY", 0, 3, -1, 1, Q("17.500002 mm")))
pocket1 = body2.newObject("PartDesign::Pocket", "Pocket")
pocket1.Profile = sketch4
pocket1.Length = 10
pocket1.Reversed = True
doc.recompute()

boolean = body2.newObject("PartDesign::Boolean", "Boolean")
boolean.Type = "Fuse"
boolean.addObjects([body])

doc.recompute()
